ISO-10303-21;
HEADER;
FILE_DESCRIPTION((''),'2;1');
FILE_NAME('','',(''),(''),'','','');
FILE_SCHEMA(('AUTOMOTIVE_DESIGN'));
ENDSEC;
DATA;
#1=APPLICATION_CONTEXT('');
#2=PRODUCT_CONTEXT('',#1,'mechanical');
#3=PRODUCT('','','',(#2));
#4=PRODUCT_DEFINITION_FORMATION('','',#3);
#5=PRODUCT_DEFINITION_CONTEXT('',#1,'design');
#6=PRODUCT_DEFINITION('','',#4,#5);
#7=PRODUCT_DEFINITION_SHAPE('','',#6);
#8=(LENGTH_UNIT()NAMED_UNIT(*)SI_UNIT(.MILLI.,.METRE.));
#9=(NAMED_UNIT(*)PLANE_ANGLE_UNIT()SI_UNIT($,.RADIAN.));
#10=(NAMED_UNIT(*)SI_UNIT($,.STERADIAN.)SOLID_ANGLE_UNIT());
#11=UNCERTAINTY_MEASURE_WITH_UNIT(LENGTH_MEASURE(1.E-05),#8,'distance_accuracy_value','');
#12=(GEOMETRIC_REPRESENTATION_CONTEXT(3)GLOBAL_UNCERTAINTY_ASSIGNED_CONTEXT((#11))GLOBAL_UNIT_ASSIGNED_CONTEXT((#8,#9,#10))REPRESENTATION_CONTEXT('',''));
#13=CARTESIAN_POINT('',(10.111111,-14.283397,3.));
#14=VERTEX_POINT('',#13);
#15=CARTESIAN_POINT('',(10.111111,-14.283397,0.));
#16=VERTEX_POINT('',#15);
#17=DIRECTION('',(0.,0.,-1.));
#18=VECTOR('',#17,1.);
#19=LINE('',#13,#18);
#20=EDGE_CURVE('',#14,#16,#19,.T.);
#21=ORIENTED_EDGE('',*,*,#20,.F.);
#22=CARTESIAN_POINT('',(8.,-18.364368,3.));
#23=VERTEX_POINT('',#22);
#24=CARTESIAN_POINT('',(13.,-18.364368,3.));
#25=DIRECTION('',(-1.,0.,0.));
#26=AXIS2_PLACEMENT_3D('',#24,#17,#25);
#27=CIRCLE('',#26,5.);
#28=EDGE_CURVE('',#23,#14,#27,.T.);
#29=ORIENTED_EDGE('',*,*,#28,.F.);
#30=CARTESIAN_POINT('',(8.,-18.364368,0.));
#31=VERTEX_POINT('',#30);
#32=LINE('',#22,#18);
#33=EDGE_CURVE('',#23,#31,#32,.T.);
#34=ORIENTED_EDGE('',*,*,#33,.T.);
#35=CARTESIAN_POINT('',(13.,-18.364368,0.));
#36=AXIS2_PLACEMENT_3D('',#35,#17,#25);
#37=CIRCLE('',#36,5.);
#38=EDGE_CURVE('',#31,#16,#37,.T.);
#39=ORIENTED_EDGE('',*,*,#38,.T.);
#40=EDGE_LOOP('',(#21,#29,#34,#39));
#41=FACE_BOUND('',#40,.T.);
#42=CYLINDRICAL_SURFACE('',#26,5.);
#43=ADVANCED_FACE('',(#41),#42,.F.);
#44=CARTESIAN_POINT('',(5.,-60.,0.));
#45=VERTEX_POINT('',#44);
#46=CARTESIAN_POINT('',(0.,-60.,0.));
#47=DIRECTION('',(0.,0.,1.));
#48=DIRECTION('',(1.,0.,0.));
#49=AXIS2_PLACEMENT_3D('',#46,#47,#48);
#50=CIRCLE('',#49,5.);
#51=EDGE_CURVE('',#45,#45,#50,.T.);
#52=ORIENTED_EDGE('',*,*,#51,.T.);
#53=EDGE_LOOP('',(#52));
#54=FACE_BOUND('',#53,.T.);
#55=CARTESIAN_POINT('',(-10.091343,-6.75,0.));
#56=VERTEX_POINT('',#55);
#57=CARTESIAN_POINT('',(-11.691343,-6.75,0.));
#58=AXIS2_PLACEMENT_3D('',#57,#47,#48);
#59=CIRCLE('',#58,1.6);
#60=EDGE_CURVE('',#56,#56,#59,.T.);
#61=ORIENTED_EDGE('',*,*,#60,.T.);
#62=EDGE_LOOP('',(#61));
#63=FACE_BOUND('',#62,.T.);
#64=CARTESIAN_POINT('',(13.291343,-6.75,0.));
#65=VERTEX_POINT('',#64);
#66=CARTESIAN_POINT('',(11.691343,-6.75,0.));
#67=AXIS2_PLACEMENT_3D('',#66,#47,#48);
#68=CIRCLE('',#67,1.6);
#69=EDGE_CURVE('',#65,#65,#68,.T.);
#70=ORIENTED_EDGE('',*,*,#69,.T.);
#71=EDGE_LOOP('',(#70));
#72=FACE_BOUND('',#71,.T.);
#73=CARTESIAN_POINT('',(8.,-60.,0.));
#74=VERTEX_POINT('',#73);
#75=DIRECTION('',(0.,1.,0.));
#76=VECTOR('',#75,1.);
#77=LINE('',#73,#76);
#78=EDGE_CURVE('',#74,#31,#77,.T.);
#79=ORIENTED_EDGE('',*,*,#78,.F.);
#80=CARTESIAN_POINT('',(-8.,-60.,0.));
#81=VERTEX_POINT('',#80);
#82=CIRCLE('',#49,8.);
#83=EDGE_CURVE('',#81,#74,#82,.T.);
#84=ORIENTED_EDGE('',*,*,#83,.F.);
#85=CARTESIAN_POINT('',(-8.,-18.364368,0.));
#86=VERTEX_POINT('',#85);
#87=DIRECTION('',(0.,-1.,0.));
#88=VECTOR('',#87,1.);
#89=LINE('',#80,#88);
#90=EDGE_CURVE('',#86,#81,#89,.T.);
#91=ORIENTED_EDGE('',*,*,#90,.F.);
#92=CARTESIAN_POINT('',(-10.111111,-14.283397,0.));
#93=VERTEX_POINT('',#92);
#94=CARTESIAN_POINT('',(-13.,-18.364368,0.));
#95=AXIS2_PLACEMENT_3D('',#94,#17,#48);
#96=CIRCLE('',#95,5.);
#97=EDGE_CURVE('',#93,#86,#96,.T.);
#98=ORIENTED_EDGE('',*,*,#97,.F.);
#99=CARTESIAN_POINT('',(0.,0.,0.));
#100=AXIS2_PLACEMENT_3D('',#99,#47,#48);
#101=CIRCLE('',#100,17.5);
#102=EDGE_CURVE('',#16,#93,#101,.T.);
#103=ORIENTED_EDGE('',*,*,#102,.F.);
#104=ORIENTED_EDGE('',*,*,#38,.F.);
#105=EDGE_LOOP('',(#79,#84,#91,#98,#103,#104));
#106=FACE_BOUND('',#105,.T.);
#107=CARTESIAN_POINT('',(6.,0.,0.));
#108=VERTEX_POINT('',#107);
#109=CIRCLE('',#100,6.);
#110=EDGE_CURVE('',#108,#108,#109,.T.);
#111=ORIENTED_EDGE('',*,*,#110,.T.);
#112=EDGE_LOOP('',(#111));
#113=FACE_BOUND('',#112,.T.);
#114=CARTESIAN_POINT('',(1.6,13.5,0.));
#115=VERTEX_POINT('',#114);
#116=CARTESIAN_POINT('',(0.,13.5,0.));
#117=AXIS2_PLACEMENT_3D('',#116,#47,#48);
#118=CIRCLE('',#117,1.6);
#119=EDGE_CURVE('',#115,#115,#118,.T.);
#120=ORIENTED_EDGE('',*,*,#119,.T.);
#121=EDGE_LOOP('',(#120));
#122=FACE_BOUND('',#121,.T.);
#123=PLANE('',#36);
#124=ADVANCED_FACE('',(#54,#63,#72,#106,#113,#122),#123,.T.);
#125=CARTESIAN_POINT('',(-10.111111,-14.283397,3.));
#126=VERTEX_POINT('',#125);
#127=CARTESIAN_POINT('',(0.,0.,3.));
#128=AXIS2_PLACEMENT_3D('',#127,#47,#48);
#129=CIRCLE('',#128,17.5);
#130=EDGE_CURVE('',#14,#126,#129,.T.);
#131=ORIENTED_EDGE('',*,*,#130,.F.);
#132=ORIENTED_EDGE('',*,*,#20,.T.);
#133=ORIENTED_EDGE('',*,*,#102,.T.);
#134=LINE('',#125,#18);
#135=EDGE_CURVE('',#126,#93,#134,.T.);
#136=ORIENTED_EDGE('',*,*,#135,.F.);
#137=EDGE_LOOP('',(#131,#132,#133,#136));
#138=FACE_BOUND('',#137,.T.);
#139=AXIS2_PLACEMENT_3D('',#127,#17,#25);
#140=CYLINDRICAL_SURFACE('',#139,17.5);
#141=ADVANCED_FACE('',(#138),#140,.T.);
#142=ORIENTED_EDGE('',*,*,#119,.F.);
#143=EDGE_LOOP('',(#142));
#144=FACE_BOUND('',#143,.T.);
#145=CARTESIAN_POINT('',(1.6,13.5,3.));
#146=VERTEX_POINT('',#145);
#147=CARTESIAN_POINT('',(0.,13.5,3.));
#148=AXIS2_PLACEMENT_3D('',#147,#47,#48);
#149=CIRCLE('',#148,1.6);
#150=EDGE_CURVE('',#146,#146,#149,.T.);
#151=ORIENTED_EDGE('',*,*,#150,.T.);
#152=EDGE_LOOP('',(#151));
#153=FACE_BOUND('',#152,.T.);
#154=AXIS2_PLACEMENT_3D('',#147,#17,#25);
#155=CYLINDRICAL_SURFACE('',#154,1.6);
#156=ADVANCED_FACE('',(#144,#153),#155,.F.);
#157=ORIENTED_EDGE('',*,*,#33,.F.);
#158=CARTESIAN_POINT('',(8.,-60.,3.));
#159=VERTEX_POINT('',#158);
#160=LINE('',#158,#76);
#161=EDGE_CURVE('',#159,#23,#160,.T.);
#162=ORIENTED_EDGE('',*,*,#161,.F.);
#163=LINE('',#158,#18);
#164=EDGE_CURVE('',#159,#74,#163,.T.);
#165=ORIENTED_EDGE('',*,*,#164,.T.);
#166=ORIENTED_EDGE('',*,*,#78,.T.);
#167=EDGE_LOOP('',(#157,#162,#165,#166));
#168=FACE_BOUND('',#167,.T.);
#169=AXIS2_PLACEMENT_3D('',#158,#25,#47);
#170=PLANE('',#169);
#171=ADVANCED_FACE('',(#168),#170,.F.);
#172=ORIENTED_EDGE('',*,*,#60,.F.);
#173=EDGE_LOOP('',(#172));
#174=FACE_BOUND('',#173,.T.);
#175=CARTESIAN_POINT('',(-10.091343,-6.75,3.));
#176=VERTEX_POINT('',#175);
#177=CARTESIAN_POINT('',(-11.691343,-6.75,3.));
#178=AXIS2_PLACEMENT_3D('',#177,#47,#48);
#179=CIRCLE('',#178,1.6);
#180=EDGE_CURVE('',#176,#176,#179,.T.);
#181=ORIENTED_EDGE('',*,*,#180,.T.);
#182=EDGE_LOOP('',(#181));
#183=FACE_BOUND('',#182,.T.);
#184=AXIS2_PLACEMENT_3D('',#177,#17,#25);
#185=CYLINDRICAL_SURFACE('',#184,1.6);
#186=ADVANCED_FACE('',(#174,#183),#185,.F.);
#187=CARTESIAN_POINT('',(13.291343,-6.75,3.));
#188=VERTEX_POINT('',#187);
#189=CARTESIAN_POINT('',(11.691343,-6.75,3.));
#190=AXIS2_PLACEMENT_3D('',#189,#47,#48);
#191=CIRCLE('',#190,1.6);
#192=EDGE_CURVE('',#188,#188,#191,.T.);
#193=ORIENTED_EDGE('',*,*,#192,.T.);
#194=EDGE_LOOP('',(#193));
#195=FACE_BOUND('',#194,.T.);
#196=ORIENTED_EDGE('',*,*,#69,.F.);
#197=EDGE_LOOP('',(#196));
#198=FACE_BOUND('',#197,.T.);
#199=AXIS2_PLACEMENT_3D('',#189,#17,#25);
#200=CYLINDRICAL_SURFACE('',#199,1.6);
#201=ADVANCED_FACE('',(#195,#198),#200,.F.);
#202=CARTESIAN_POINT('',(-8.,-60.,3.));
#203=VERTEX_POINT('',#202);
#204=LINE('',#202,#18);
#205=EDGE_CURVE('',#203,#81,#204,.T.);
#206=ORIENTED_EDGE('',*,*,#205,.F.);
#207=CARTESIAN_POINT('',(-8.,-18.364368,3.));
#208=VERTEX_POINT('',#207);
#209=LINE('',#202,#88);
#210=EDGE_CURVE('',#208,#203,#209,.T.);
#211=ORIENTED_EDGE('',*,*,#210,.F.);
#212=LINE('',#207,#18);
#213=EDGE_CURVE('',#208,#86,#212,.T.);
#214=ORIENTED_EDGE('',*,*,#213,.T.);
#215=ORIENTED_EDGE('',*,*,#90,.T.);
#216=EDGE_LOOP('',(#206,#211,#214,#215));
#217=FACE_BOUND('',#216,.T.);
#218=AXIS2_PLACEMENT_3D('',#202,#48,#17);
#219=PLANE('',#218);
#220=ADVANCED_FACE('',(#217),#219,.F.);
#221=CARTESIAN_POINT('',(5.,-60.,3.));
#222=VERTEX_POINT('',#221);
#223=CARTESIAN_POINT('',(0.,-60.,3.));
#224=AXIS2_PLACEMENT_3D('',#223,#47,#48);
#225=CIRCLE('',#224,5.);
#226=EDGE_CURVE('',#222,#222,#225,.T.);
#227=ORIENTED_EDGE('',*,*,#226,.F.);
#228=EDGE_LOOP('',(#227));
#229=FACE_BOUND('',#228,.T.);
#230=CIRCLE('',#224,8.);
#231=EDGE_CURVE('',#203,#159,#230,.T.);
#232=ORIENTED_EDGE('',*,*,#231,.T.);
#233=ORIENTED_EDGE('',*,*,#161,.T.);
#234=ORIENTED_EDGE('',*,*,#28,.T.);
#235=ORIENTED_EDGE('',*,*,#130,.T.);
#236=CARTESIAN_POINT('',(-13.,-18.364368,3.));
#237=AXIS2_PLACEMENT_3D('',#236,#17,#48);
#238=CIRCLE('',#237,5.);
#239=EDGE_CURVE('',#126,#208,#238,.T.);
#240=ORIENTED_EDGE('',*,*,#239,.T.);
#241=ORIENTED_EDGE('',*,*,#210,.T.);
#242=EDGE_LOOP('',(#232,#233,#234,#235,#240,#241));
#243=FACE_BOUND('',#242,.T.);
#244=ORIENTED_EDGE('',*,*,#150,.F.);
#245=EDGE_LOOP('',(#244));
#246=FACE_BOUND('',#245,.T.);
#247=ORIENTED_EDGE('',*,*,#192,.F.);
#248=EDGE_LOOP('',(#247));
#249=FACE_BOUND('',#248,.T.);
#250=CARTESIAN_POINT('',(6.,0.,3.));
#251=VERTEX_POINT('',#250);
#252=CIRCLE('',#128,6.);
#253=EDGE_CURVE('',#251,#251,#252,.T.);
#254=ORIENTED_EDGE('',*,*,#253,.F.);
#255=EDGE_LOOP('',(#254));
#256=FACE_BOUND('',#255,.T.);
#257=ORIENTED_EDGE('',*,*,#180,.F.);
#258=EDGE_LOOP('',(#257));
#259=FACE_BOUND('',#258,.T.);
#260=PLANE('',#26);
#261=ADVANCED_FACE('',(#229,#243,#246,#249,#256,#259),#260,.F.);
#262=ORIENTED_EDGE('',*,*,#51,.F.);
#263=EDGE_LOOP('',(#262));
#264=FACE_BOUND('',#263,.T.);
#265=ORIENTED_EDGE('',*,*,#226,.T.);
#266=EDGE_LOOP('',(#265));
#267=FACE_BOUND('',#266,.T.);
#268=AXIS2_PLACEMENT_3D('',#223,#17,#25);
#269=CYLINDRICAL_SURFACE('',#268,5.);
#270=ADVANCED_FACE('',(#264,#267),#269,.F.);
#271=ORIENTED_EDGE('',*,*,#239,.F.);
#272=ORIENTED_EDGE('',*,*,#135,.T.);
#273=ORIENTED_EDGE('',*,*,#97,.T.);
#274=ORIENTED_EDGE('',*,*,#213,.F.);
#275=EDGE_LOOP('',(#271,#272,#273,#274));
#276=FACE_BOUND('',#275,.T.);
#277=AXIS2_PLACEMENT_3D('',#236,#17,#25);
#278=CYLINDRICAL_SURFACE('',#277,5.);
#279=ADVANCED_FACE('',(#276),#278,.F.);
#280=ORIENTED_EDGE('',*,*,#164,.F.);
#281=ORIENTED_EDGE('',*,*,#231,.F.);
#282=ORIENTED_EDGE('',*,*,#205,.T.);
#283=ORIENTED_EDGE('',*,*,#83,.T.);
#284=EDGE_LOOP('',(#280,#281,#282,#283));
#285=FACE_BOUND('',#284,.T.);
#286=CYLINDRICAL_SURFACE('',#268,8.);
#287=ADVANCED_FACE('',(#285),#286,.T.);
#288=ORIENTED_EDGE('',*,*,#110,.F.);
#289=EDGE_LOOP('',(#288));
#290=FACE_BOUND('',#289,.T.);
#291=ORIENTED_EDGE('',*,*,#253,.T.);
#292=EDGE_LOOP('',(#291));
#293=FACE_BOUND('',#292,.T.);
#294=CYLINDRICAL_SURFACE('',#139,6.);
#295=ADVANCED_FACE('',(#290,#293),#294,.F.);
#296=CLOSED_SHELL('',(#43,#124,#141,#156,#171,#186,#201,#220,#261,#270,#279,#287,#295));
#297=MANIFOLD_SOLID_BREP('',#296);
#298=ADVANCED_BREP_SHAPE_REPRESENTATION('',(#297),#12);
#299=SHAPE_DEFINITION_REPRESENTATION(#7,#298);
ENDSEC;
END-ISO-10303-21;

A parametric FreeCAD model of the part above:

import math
import FreeCAD as App
import Part
import Sketcher

doc = App.newDocument("Part")
body = doc.addObject("PartDesign::Body", "Body")

# Sketch on XY plane
sketch1 = body.newObject("Sketcher::SketchObject", "Sketch")
sketch1.AttachmentSupport = (doc.getObject("XY_Plane"), [""])
sketch1.MapMode = "FlatFace"
sketch1.addGeometry([
    Part.LineSegment(App.Vector(-8, -18.4, 0), App.Vector(-8, -60, 0)),  # 0
    Part.ArcOfCircle(Part.Circle(App.Vector(0, -60, 0), App.Vector(0, 0, 1), 8), math.radians(180), math.radians(360)),  # 1
    Part.LineSegment(App.Vector(8, -60, 0), App.Vector(8, -18.4, 0)),  # 2
    Part.ArcOfCircle(Part.Circle(App.Vector(13, -18.4, 0), App.Vector(0, 0, 1), 5), math.radians(125), math.radians(180)),  # 3
    Part.ArcOfCircle(Part.Circle(App.Vector(0, 0, 0), App.Vector(0, 0, 1), 17.5), math.radians(-55), math.radians(235)),  # 4
    Part.ArcOfCircle(Part.Circle(App.Vector(-13, -18.4, 0), App.Vector(0, 0, 1), 5), math.radians(0), math.radians(55)),  # 5
    Part.Circle(App.Vector(0, -60, 0), App.Vector(0, 0, 1), 5),  # 6
    Part.Circle(App.Vector(11.7, -6.8, 0), App.Vector(0, 0, 1), 1.6),  # 7
    Part.Circle(App.Vector(-11.7, -6.8, 0), App.Vector(0, 0, 1), 1.6),  # 8
    Part.Circle(App.Vector(0, 0, 0), App.Vector(0, 0, 1), 6),  # 9
    Part.Circle(App.Vector(0, 13.5, 0), App.Vector(0, 0, 1), 1.6),  # 10
], False)
sketch1.addConstraint([
    Sketcher.Constraint("Tangent", 0, 2, 1, 1),
    Sketcher.Constraint("Tangent", 1, 2, 2, 1),
    Sketcher.Constraint("Tangent", 2, 2, 3, 2),
    Sketcher.Constraint("Tangent", 3, 1, 4, 1),
    Sketcher.Constraint("Tangent", 4, 2, 5, 2),
    Sketcher.Constraint("Tangent", 5, 1, 0, 1),
    Sketcher.Constraint("Vertical", 0),
    Sketcher.Constraint("Vertical", 2),
    Sketcher.Constraint("Coincident", 4, 3, -1, 1),
    Sketcher.Constraint("Coincident", 9, 3, -1, 1),
    Sketcher.Constraint("Coincident", 6, 3, 1, 3),
    Sketcher.Constraint("Equal", 3, 5),
    Sketcher.Constraint("Equal", 5, 6),
    Sketcher.Constraint("Equal", 7, 8),
    Sketcher.Constraint("Equal", 8, 10),
    Sketcher.Constraint("Symmetric", 7, 3, 8, 3, -2),
    Sketcher.Constraint("PointOnObject", 1, 3, -2),
    Sketcher.Constraint("PointOnObject", 10, 3, -2),
    Sketcher.Constraint("Diameter", 6, 10.0),
    Sketcher.Constraint("Diameter", 9, 12.0),
    Sketcher.Constraint("Radius", 1, 8.0),
    Sketcher.Constraint("Diameter", 7, 3.2),
    Sketcher.Constraint("Radius", 4, 17.5),
    Sketcher.Constraint("DistanceY", 1, 3, -1, 1, 60.0),
    Sketcher.Constraint("DistanceY", -1, 1, 10, 3, 13.5),
    Sketcher.Constraint("DistanceY", 7, 3, -1, 1, 6.75),
    Sketcher.Constraint("DistanceX", 3, 1, 7, 3, 1.580232),
])
pad1 = body.newObject("PartDesign::Pad", "Pad")
pad1.Profile = sketch1
pad1.Length = 3

doc.recompute()
